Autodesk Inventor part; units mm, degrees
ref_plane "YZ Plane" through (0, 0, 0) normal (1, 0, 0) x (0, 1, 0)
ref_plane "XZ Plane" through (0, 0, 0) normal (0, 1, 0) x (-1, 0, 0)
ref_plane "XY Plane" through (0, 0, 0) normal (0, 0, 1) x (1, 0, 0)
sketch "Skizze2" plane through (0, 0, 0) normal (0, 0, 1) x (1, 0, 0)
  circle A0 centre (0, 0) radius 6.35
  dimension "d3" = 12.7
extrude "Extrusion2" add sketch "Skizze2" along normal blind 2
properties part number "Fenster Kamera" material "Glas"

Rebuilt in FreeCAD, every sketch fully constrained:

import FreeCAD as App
import Part
import Sketcher
Q = App.Units.Quantity

doc = App.newDocument("Part")
body = doc.addObject("PartDesign::Body", "Body")

# Sketch on XY plane
sketch1 = body.newObject("Sketcher::SketchObject", "Sketch")
sketch1.AttachmentSupport = (doc.getObject("XY_Plane"), [""])
sketch1.MapMode = "FlatFace"
sketch1.addGeometry(Part.Circle(App.Vector(0, 0, 0), App.Vector(0, 0, 1), 6), False)
sketch1.addConstraint(Sketcher.Constraint("Coincident", 0, 3, -1, 1))
sketch1.addConstraint(Sketcher.Constraint("Diameter", 0, Q("12.7 mm")))
pad1 = body.newObject("PartDesign::Pad", "Pad")
pad1.Profile = sketch1
pad1.Length = 2

doc.recompute()
